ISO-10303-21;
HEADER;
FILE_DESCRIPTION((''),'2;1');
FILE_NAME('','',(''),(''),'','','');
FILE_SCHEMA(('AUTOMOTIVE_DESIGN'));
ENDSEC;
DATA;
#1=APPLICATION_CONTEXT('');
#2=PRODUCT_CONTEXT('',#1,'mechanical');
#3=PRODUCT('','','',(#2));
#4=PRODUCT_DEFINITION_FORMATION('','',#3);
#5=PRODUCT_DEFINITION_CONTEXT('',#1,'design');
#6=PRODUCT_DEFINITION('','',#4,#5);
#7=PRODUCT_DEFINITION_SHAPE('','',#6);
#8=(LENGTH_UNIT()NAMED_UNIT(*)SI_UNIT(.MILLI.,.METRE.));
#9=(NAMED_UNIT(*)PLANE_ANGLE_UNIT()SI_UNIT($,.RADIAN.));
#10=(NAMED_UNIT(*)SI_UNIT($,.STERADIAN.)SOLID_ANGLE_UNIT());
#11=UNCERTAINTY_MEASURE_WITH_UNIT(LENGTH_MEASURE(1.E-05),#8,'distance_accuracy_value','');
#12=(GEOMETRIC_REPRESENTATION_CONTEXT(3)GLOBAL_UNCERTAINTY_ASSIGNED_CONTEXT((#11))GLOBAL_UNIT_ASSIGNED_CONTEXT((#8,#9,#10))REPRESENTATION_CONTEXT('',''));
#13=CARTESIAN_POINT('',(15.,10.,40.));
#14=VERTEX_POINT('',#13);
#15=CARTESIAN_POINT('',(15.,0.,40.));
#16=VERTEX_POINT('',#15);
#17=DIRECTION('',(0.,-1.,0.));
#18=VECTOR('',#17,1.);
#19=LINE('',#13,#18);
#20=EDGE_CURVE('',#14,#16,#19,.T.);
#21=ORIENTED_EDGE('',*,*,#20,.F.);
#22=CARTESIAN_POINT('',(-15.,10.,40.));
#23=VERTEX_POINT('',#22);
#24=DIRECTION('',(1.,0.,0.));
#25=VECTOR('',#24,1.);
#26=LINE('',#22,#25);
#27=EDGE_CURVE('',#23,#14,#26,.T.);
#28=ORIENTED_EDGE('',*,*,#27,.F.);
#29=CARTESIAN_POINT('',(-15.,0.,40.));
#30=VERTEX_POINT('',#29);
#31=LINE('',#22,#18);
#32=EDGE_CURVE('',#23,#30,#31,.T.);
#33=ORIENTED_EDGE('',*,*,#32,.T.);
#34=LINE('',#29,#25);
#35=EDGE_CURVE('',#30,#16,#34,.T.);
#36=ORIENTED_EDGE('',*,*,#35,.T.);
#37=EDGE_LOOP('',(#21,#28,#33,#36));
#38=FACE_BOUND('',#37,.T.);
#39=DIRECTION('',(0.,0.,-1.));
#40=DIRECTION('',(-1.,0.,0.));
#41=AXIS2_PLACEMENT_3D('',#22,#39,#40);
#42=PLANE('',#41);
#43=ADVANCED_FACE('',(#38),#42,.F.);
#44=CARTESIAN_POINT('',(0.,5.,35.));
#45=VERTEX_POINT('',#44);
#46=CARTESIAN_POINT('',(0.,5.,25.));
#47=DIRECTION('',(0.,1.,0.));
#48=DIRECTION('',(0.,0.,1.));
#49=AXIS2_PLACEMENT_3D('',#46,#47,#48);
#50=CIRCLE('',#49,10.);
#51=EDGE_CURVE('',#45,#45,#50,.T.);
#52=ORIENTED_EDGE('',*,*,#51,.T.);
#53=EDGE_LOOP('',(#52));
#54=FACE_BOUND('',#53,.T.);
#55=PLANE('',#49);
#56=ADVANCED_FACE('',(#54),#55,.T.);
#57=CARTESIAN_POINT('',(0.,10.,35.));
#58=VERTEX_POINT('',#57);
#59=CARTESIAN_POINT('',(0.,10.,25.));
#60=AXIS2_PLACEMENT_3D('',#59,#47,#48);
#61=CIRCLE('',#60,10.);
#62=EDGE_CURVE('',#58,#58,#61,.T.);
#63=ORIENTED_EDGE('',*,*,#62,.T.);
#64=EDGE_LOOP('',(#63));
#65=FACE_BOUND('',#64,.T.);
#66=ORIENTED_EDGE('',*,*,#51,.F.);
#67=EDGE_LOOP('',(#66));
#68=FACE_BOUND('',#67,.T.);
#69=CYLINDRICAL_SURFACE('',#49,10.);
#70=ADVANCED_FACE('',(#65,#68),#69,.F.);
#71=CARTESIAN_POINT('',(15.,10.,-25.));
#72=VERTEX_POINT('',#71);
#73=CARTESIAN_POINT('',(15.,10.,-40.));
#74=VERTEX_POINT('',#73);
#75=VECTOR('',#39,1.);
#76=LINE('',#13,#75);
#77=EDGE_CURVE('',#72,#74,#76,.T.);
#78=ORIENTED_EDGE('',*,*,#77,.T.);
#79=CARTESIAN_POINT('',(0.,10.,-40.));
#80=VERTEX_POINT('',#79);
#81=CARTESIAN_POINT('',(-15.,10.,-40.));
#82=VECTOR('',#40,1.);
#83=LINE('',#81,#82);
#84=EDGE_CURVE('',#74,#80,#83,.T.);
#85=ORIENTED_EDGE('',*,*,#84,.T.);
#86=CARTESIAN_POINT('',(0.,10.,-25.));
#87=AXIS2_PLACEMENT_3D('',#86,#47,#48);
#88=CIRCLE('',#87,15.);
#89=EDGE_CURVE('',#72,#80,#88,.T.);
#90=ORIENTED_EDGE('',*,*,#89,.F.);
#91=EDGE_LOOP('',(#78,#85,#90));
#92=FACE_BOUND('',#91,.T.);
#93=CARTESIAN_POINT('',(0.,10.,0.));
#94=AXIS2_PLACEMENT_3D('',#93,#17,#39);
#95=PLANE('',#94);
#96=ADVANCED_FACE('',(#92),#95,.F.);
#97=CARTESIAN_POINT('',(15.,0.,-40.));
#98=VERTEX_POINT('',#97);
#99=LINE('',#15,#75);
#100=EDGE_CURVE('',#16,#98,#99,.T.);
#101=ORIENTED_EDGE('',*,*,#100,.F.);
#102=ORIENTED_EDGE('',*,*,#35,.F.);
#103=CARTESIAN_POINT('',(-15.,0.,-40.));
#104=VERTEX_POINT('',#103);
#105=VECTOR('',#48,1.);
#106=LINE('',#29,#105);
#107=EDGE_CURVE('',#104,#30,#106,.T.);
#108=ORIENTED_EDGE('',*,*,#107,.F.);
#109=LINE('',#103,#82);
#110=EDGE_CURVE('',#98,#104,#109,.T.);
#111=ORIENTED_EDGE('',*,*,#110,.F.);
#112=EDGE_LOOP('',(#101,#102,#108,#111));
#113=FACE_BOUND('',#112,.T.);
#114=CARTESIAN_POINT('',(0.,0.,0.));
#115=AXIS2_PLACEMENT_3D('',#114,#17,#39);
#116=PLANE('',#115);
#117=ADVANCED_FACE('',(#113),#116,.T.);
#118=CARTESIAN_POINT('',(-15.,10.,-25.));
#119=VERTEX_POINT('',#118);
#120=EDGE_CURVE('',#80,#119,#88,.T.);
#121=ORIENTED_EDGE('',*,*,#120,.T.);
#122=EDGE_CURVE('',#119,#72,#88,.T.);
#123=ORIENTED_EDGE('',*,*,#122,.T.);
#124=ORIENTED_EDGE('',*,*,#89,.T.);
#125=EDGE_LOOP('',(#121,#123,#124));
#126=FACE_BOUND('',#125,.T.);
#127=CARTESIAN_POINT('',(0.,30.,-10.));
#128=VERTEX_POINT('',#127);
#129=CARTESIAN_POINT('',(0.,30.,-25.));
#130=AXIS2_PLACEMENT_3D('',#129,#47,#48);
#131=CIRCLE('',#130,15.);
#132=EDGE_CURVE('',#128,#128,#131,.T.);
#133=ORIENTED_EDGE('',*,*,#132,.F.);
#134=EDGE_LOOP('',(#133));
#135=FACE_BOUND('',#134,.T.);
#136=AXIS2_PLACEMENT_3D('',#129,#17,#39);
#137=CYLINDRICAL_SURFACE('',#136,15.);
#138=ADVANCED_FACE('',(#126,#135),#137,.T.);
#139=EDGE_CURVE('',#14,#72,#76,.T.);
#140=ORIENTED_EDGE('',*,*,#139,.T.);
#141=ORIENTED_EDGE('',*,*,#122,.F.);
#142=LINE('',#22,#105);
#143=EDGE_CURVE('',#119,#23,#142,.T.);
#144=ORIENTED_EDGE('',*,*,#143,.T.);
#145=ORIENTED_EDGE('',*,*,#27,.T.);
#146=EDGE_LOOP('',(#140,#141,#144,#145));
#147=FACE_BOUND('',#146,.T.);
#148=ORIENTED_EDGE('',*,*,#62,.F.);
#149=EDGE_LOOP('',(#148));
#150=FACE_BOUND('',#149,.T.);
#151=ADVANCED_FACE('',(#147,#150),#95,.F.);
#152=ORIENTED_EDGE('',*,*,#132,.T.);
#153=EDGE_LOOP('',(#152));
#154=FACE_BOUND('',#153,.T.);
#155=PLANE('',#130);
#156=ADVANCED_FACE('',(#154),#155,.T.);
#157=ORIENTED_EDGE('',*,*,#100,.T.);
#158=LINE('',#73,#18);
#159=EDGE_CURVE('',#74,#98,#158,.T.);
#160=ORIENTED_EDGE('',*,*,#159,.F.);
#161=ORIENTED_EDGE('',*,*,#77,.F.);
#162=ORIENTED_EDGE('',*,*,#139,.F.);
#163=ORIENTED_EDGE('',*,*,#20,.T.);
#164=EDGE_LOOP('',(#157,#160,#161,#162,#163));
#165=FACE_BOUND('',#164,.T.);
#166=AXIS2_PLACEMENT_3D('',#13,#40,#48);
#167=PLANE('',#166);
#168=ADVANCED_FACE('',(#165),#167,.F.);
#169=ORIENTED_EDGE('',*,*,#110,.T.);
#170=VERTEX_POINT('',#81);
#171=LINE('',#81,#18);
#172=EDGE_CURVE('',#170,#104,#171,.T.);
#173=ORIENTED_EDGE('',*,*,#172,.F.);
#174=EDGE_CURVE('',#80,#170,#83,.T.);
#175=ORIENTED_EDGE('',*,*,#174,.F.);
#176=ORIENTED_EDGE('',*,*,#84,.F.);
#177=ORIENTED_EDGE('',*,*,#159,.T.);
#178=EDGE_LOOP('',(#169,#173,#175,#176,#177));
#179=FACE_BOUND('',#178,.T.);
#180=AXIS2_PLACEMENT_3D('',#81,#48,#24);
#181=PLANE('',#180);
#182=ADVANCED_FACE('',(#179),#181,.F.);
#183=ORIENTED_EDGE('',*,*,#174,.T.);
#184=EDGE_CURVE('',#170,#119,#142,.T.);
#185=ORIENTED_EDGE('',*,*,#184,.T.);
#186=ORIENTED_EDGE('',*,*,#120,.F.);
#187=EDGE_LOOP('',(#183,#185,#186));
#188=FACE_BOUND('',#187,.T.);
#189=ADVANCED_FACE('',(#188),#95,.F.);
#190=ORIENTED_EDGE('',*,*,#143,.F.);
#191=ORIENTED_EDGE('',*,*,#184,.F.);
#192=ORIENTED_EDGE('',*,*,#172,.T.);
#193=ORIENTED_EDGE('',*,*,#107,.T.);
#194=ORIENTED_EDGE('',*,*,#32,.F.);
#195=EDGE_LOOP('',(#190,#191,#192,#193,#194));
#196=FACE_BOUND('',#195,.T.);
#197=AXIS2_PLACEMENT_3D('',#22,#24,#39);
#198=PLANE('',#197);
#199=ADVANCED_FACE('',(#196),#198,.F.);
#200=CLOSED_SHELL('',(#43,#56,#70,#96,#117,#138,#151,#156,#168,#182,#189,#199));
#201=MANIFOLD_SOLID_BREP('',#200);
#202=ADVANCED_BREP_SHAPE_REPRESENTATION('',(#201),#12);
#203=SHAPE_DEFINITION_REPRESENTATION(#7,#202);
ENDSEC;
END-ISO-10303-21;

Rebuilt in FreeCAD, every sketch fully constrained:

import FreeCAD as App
import Part
import Sketcher

V = App.Vector
Q = App.Units.Quantity


def add_polygon(sketch, points):
    """Adds a closed chain of lines whose ends are joined by coincident constraints."""
    first, n = sketch.GeometryCount, len(points)
    for a, b in zip(points, points[1:] + points[:1]):
        sketch.addGeometry(Part.LineSegment(App.Vector(*a, 0), App.Vector(*b, 0)), False)
    for i in range(n):
        sketch.addConstraint(Sketcher.Constraint("Coincident", first + i, 2, first + (i + 1) % n, 1))

doc = App.newDocument("Part")
params = doc.addObject("Spreadsheet::Sheet", "Params")
for row, (alias, value) in enumerate([
    ("sketch1_width", "30 mm"),
    ("sketch1_height", "80 mm"),
    ("pad1_length", "10 mm"),
    ("sketch2_diameter", "30 mm"),
    ("pad2_length", "20 mm"),
    ("sketch3_diameter", "20 mm"),
    ("pocket1_length", "5 mm"),
], start=1):
    params.set(f"A{row}", alias)
    params.set(f"B{row}", "=" + value)
    params.setAlias(f"B{row}", alias)

body = doc.addObject("PartDesign::Body", "Body")

sketch1 = body.newObject("Sketcher::SketchObject", "Sketch")
sketch1.AttachmentSupport = (doc.getObject("XZ_Plane"), [""])
sketch1.MapMode = "FlatFace"
add_polygon(sketch1, [(-15, -40), (-15, 40), (15, 40), (15, -40)])
sketch1.addConstraint([
    Sketcher.Constraint("Vertical", 0),
    Sketcher.Constraint("Horizontal", 1),
    Sketcher.Constraint("Vertical", 2),
    Sketcher.Constraint("Horizontal", 3),
    Sketcher.Constraint("Symmetric", 0, 2, 2, 2, -1, 1),
    Sketcher.Constraint("DistanceX", 1, 1, 1, 2, Q("30 mm")),
    Sketcher.Constraint("DistanceY", 0, 1, 0, 2, Q("80 mm")),
])
sketch1.setExpression("Constraints[9]", "Params.sketch1_width")
sketch1.setExpression("Constraints[10]", "Params.sketch1_height")
pad1 = body.newObject("PartDesign::Pad", "Pad")
pad1.Profile = sketch1
pad1.setExpression("Length", "Params.pad1_length")
pad1.Reversed = True

sketch2 = body.newObject("Sketcher::SketchObject", "Sketch001")
sketch2.AttachmentSupport = (doc.getObject("XZ_Plane"), [""])
sketch2.MapMode = "FlatFace"
sketch2.AttachmentOffset = App.Placement(V(0, 0, -10), App.Rotation())
sketch2.addGeometry(Part.Circle(V(0, -25, 0), V(0, 0, 1), 15), False)
sketch2.addConstraint([
    Sketcher.Constraint("PointOnObject", 0, 3, -2),
    Sketcher.Constraint("Diameter", 0, Q("30 mm")),
    Sketcher.Constraint("DistanceY", 0, 3, -1, 1, Q("25 mm")),
])
sketch2.setExpression("Constraints[1]", "Params.sketch2_diameter")
pad2 = body.newObject("PartDesign::Pad", "Pad001")
pad2.Profile = sketch2
pad2.setExpression("Length", "Params.pad2_length")
pad2.Reversed = True

sketch3 = body.newObject("Sketcher::SketchObject", "Sketch002")
sketch3.AttachmentSupport = (doc.getObject("XZ_Plane"), [""])
sketch3.MapMode = "FlatFace"
sketch3.AttachmentOffset = App.Placement(V(0, 0, -10), App.Rotation())
sketch3.addGeometry(Part.Circle(V(0, 25, 0), V(0, 0, 1), 10), False)
sketch3.addConstraint([
    Sketcher.Constraint("PointOnObject", 0, 3, -2),
    Sketcher.Constraint("Diameter", 0, Q("20 mm")),
    Sketcher.Constraint("DistanceY", -1, 1, 0, 3, Q("25 mm")),
])
sketch3.setExpression("Constraints[1]", "Params.sketch3_diameter")
pocket1 = body.newObject("PartDesign::Pocket", "Pocket")
pocket1.Profile = sketch3
pocket1.setExpression("Length", "Params.pocket1_length")
pocket1.Reversed = True

doc.recompute()
